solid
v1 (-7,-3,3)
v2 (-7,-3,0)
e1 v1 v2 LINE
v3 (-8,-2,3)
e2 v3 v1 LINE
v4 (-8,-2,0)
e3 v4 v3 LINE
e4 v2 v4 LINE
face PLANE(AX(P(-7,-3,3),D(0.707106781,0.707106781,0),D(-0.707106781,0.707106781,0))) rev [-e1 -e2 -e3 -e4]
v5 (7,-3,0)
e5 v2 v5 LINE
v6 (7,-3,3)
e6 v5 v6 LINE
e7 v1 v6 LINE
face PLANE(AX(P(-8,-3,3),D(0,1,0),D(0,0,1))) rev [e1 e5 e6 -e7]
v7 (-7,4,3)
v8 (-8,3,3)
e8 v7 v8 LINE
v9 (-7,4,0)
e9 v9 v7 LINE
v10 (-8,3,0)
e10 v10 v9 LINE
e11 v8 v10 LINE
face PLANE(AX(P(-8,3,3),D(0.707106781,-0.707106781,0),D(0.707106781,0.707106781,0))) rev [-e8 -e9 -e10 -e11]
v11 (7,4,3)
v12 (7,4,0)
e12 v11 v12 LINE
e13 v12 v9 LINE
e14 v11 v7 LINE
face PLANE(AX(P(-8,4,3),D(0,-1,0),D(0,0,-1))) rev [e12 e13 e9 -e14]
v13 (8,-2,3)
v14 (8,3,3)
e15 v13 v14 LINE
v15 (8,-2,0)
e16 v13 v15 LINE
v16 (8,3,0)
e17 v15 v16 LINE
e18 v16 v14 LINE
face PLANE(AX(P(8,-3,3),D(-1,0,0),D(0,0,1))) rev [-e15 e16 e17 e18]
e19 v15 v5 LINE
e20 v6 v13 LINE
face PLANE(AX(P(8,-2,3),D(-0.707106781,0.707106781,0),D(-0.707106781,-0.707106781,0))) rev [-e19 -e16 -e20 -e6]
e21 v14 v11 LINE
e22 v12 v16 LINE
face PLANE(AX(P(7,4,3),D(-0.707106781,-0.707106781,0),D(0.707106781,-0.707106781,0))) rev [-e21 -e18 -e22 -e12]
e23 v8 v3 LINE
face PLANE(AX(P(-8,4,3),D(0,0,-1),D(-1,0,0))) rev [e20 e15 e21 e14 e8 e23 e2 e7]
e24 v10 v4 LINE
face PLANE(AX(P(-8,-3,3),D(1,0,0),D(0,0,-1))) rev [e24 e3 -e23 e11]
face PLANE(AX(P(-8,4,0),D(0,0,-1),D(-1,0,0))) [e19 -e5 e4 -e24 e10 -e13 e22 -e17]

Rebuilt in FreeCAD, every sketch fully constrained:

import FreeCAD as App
import Part
import Sketcher

V = App.Vector


def edges_at(feature, points):
    """Names of the edges that pass closest to the given points."""
    edges = feature.Shape.Edges
    near = lambda p: min(range(len(edges)), key=lambda i: edges[i].distToShape(Part.Vertex(*p))[0])
    return sorted({f"Edge{near(p) + 1}" for p in points})

doc = App.newDocument("Part")
params = doc.addObject("Spreadsheet::Sheet", "Params")
for row, (alias, value) in enumerate([
    ("sketch1_width", "16 mm"),
    ("sketch1_height", "7 mm"),
    ("pad1_length", "3 mm"),
    ("chamfer_size", "1 mm"),
], start=1):
    params.set(f"A{row}", alias)
    params.set(f"B{row}", "=" + value)
    params.setAlias(f"B{row}", alias)

body = doc.addObject("PartDesign::Body", "Body")

sketch1 = doc.addObject("Sketcher::SketchObject", "Sketch")
body.addObject(sketch1)
sketch1.AttachmentSupport = (doc.XY_Plane, [""])
sketch1.MapMode = "FlatFace"
sketch1.addGeometry([
    Part.LineSegment(V(-8, 4, 0), V(-8, -3, 0)),
    Part.LineSegment(V(-8, -3, 0), V(8, -3, 0)),
    Part.LineSegment(V(8, -3, 0), V(8, 4, 0)),
    Part.LineSegment(V(8, 4, 0), V(-8, 4, 0)),
], False)
sketch1.addConstraint([
    Sketcher.Constraint("Coincident", 0, 2, 1, 1),
    Sketcher.Constraint("Coincident", 1, 2, 2, 1),
    Sketcher.Constraint("Coincident", 2, 2, 3, 1),
    Sketcher.Constraint("Coincident", 3, 2, 0, 1),
    Sketcher.Constraint("Vertical", 0),
    Sketcher.Constraint("Horizontal", 1),
    Sketcher.Constraint("Vertical", 2),
    Sketcher.Constraint("Horizontal", 3),
    Sketcher.Constraint("DistanceX", 1, 1, 1, 2, 16.0),
    Sketcher.Constraint("DistanceY", 0, 2, 0, 1, 7.0),
    Sketcher.Constraint("DistanceX", 0, 2, -1, 1, 8.0),
    Sketcher.Constraint("DistanceY", 0, 2, -1, 1, 3.0),
])
sketch1.setExpression("Constraints[8]", "Params.sketch1_width")
sketch1.setExpression("Constraints[9]", "Params.sketch1_height")
pad1 = doc.addObject("PartDesign::Pad", "Pad")
body.addObject(pad1)
pad1.Profile = sketch1
pad1.setExpression("Length", "Params.pad1_length")
doc.recompute()

chamfer = doc.addObject("PartDesign::Chamfer", "Chamfer")
body.addObject(chamfer)
chamfer.Base = (pad1, edges_at(pad1, [
    (-8, 4, 1.5),
    (8, 4, 1.5),
    (8, -3, 1.5),
    (-8, -3, 1.5),
]))
chamfer.setExpression("Size", "Params.chamfer_size")

doc.recompute()
